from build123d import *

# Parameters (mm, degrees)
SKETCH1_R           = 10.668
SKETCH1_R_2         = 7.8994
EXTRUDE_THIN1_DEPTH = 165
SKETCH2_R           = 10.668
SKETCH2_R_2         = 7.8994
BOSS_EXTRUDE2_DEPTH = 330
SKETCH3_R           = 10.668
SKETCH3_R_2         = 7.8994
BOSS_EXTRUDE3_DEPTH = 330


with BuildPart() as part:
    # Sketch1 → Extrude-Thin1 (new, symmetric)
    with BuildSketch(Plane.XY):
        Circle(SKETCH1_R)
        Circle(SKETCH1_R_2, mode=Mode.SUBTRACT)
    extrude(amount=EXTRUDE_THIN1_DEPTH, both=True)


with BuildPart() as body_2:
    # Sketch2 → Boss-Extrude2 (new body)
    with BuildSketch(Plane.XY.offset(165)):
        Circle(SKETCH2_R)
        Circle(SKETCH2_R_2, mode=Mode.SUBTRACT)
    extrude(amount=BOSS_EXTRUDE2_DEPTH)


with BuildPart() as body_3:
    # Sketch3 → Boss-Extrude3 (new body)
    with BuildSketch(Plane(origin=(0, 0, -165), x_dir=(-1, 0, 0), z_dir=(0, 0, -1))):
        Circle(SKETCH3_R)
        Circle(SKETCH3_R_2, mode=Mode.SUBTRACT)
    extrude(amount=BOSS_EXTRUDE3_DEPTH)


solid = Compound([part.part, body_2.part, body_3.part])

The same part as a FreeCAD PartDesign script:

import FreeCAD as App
import Part
import Sketcher
from FreeCAD import Vector

doc = App.newDocument("Part")
body = doc.addObject("PartDesign::Body", "Body")

sketch1 = body.newObject("Sketcher::SketchObject", "Sketch")
sketch1.AttachmentSupport = (doc.getObject("XY_Plane"), [""])
sketch1.MapMode = "FlatFace"
sketch1.addGeometry([
    Part.Circle(Vector(0, 0, 0), Vector(0, 0, 1), 11),
    Part.Circle(Vector(0, 0, 0), Vector(0, 0, 1), 8),
], False)
sketch1.addConstraint([
    Sketcher.Constraint("Coincident", 0, 3, -1, 1),
    Sketcher.Constraint("Coincident", 1, 3, -1, 1),
    Sketcher.Constraint("Diameter", 0, 21.336),
    Sketcher.Constraint("Diameter", 1, 15.7988),
])
pad1 = body.newObject("PartDesign::Pad", "Pad")
pad1.Profile = sketch1
pad1.Length = 330
pad1.Midplane = True
body2 = doc.addObject("PartDesign::Body", "Body001")

sketch2 = body2.newObject("Sketcher::SketchObject", "Sketch001")
sketch2.AttachmentSupport = (doc.getObject("XY_Plane001"), [""])
sketch2.MapMode = "FlatFace"
sketch2.AttachmentOffset = App.Placement(Vector(0, 0, 165), App.Rotation())
sketch2.addGeometry([
    Part.Circle(Vector(0, 0, 0), Vector(0, 0, 1), 11),
    Part.Circle(Vector(0, 0, 0), Vector(0, 0, 1), 8),
], False)
sketch2.addConstraint([
    Sketcher.Constraint("Coincident", 0, 3, -1, 1),
    Sketcher.Constraint("Coincident", 1, 3, -1, 1),
    Sketcher.Constraint("Diameter", 0, 21.336),
    Sketcher.Constraint("Diameter", 1, 15.7988),
])
pad2 = body2.newObject("PartDesign::Pad", "Pad001")
pad2.Profile = sketch2
pad2.Length = 330
body3 = doc.addObject("PartDesign::Body", "Body002")

sketch3 = body3.newObject("Sketcher::SketchObject", "Sketch002")
sketch3.AttachmentSupport = (doc.getObject("XY_Plane002"), [""])
sketch3.MapMode = "FlatFace"
sketch3.AttachmentOffset = App.Placement(Vector(0, 0, -165), App.Rotation())
sketch3.addGeometry([
    Part.Circle(Vector(0, 0, 0), Vector(0, 0, 1), 11),
    Part.Circle(Vector(0, 0, 0), Vector(0, 0, 1), 8),
], False)
sketch3.addConstraint([
    Sketcher.Constraint("Coincident", 0, 3, -1, 1),
    Sketcher.Constraint("Coincident", 1, 3, -1, 1),
    Sketcher.Constraint("Diameter", 0, 21.336),
    Sketcher.Constraint("Diameter", 1, 15.7988),
])
pad3 = body3.newObject("PartDesign::Pad", "Pad002")
pad3.Profile = sketch3
pad3.Length = 330
pad3.Reversed = True

doc.recompute()
